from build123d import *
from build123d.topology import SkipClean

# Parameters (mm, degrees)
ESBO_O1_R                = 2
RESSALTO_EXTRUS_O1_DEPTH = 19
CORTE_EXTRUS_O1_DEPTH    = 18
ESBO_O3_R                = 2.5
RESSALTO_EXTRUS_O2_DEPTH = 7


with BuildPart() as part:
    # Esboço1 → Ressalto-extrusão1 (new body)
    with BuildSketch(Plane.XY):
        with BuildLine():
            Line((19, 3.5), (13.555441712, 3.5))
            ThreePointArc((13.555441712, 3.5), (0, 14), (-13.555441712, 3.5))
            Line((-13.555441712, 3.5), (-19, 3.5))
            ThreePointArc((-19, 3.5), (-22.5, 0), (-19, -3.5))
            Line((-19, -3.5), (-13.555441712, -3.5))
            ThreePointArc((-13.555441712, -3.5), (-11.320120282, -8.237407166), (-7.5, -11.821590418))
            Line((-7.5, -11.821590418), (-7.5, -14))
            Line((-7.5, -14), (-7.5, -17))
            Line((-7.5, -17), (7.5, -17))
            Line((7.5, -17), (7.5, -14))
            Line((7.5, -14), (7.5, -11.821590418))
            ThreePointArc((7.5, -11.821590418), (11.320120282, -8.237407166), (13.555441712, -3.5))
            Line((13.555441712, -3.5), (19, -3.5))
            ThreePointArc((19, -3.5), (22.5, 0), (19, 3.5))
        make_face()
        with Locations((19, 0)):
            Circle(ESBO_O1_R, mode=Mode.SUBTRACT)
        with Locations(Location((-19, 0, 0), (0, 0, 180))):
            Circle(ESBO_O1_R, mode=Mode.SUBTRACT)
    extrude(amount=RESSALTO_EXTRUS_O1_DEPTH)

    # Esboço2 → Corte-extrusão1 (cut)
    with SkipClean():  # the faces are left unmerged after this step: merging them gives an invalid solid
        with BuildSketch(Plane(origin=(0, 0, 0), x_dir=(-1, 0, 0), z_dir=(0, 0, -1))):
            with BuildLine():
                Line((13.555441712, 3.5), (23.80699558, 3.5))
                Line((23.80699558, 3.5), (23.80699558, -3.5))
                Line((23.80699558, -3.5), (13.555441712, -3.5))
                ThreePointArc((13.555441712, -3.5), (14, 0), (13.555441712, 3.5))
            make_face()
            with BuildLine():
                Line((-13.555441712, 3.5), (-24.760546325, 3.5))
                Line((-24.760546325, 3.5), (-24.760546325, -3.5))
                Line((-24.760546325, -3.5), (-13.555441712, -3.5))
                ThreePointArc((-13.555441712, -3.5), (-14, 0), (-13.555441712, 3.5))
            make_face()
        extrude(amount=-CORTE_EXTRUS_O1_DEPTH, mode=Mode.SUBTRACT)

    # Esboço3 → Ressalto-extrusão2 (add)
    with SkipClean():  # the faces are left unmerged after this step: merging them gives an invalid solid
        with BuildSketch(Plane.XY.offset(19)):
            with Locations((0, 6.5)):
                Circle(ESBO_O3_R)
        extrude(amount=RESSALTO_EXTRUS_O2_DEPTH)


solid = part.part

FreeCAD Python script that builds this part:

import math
import FreeCAD as App
import Part
import Sketcher
Q = App.Units.Quantity

doc = App.newDocument("Part")
body = doc.addObject("PartDesign::Body", "Body")

sketch1 = body.newObject("Sketcher::SketchObject", "Sketch")
sketch1.AttachmentSupport = (doc.getObject("XY_Plane"), [""])
sketch1.MapMode = "FlatFace"
sketch1.addGeometry(Part.LineSegment(App.Vector(19, 3.5, 0), App.Vector(13.6, 3.5, 0)), False)
sketch1.addGeometry(Part.ArcOfCircle(Part.Circle(App.Vector(0, 0, 0), App.Vector(0, 0, 1), 14), math.radians(14), math.radians(166)), False)
sketch1.addGeometry(Part.LineSegment(App.Vector(-13.6, 3.5, 0), App.Vector(-19, 3.5, 0)), False)
sketch1.addGeometry(Part.ArcOfCircle(Part.Circle(App.Vector(-19, 0, 0), App.Vector(0, 0, 1), 3.5), math.radians(90), math.radians(270)), False)
sketch1.addGeometry(Part.LineSegment(App.Vector(-19, -3.5, 0), App.Vector(-13.6, -3.5, 0)), False)
sketch1.addGeometry(Part.ArcOfCircle(Part.Circle(App.Vector(0, 0, 0), App.Vector(0, 0, 1), 14), math.radians(-166), math.radians(-122)), False)
sketch1.addGeometry(Part.LineSegment(App.Vector(-7.5, -11.8, 0), App.Vector(-7.5, -17, 0)), False)
sketch1.addGeometry(Part.LineSegment(App.Vector(-7.5, -17, 0), App.Vector(7.5, -17, 0)), False)
sketch1.addGeometry(Part.LineSegment(App.Vector(7.5, -17, 0), App.Vector(7.5, -11.8, 0)), False)
sketch1.addGeometry(Part.ArcOfCircle(Part.Circle(App.Vector(0, 0, 0), App.Vector(0, 0, 1), 14), math.radians(-58), math.radians(-14)), False)
sketch1.addGeometry(Part.LineSegment(App.Vector(13.6, -3.5, 0), App.Vector(19, -3.5, 0)), False)
sketch1.addGeometry(Part.ArcOfCircle(Part.Circle(App.Vector(19, 0, 0), App.Vector(0, 0, 1), 3.5), math.radians(-90), math.radians(90)), False)
sketch1.addGeometry(Part.Circle(App.Vector(-19, 0, 0), App.Vector(0, 0, 1), 2), False)
sketch1.addGeometry(Part.Circle(App.Vector(19, 0, 0), App.Vector(0, 0, 1), 2), False)
sketch1.addConstraint(Sketcher.Constraint("Coincident", 0, 2, 1, 1))
sketch1.addConstraint(Sketcher.Constraint("Coincident", 1, 2, 2, 1))
sketch1.addConstraint(Sketcher.Constraint("Tangent", 2, 2, 3, 1))
sketch1.addConstraint(Sketcher.Constraint("Tangent", 3, 2, 4, 1))
sketch1.addConstraint(Sketcher.Constraint("Coincident", 4, 2, 5, 1))
sketch1.addConstraint(Sketcher.Constraint("Coincident", 5, 2, 6, 1))
sketch1.addConstraint(Sketcher.Constraint("Coincident", 6, 2, 7, 1))
sketch1.addConstraint(Sketcher.Constraint("Coincident", 7, 2, 8, 1))
sketch1.addConstraint(Sketcher.Constraint("Coincident", 8, 2, 9, 1))
sketch1.addConstraint(Sketcher.Constraint("Coincident", 9, 2, 10, 1))
sketch1.addConstraint(Sketcher.Constraint("Tangent", 10, 2, 11, 1))
sketch1.addConstraint(Sketcher.Constraint("Tangent", 11, 2, 0, 1))
sketch1.addConstraint(Sketcher.Constraint("Horizontal", 0))
sketch1.addConstraint(Sketcher.Constraint("Horizontal", 2))
sketch1.addConstraint(Sketcher.Constraint("Horizontal", 4))
sketch1.addConstraint(Sketcher.Constraint("Vertical", 6))
sketch1.addConstraint(Sketcher.Constraint("Horizontal", 7))
sketch1.addConstraint(Sketcher.Constraint("Vertical", 8))
sketch1.addConstraint(Sketcher.Constraint("Horizontal", 10))
sketch1.addConstraint(Sketcher.Constraint("Coincident", 1, 3, -1, 1))
sketch1.addConstraint(Sketcher.Constraint("Coincident", 5, 3, -1, 1))
sketch1.addConstraint(Sketcher.Constraint("Coincident", 9, 3, -1, 1))
sketch1.addConstraint(Sketcher.Constraint("Coincident", 12, 3, 3, 3))
sketch1.addConstraint(Sketcher.Constraint("Coincident", 13, 3, 11, 3))
sketch1.addConstraint(Sketcher.Constraint("Equal", 1, 5))
sketch1.addConstraint(Sketcher.Constraint("Equal", 5, 9))
sketch1.addConstraint(Sketcher.Constraint("Equal", 3, 11))
sketch1.addConstraint(Sketcher.Constraint("Equal", 12, 13))
sketch1.addConstraint(Sketcher.Constraint("Symmetric", 3, 3, 11, 3, -1, 1))
sketch1.addConstraint(Sketcher.Constraint("PointOnObject", 3, 3, -1))
sketch1.addConstraint(Sketcher.Constraint("Horizontal", 5, 2, 8, 2))
sketch1.addConstraint(Sketcher.Constraint("Diameter", 12, Q("4 mm")))
sketch1.addConstraint(Sketcher.Constraint("Radius", 1, Q("14 mm")))
sketch1.addConstraint(Sketcher.Constraint("Radius", 3, Q("3.5 mm")))
sketch1.addConstraint(Sketcher.Constraint("DistanceX", 7, 1, 7, 2, Q("15 mm")))
sketch1.addConstraint(Sketcher.Constraint("DistanceX", 3, 3, -1, 1, Q("19 mm")))
sketch1.addConstraint(Sketcher.Constraint("DistanceY", 6, 2, -1, 1, Q("17 mm")))
pad1 = body.newObject("PartDesign::Pad", "Pad")
pad1.Profile = sketch1
pad1.Length = 19

sketch2 = body.newObject("Sketcher::SketchObject", "Sketch001")
sketch2.AttachmentSupport = (doc.getObject("XY_Plane"), [""])
sketch2.MapMode = "FlatFace"
sketch2.addGeometry(Part.LineSegment(App.Vector(-24, 4, 0), App.Vector(-14, 4, 0)), False)
sketch2.addGeometry(Part.ArcOfCircle(Part.Circle(App.Vector(0, 0, 0), App.Vector(0, 0, 1), 14), math.radians(166), math.radians(194)), False)
sketch2.addGeometry(Part.LineSegment(App.Vector(-14, -4, 0), App.Vector(-24, -4, 0)), False)
sketch2.addGeometry(Part.LineSegment(App.Vector(-24, -4, 0), App.Vector(-24, 4, 0)), False)
sketch2.addGeometry(Part.LineSegment(App.Vector(14, 4, 0), App.Vector(25, 4, 0)), False)
sketch2.addGeometry(Part.LineSegment(App.Vector(25, 4, 0), App.Vector(25, -4, 0)), False)
sketch2.addGeometry(Part.LineSegment(App.Vector(25, -4, 0), App.Vector(14, -4, 0)), False)
sketch2.addGeometry(Part.ArcOfCircle(Part.Circle(App.Vector(0, 0, 0), App.Vector(0, 0, 1), 14), math.radians(-14), math.radians(14)), False)
sketch2.addConstraint(Sketcher.Constraint("Coincident", 0, 2, 1, 1))
sketch2.addConstraint(Sketcher.Constraint("Coincident", 1, 2, 2, 1))
sketch2.addConstraint(Sketcher.Constraint("Coincident", 2, 2, 3, 1))
sketch2.addConstraint(Sketcher.Constraint("Coincident", 3, 2, 0, 1))
sketch2.addConstraint(Sketcher.Constraint("Coincident", 4, 2, 5, 1))
sketch2.addConstraint(Sketcher.Constraint("Coincident", 5, 2, 6, 1))
sketch2.addConstraint(Sketcher.Constraint("Coincident", 6, 2, 7, 1))
sketch2.addConstraint(Sketcher.Constraint("Coincident", 7, 2, 4, 1))
sketch2.addConstraint(Sketcher.Constraint("Horizontal", 0))
sketch2.addConstraint(Sketcher.Constraint("Horizontal", 2))
sketch2.addConstraint(Sketcher.Constraint("Vertical", 3))
sketch2.addConstraint(Sketcher.Constraint("Horizontal", 4))
sketch2.addConstraint(Sketcher.Constraint("Vertical", 5))
sketch2.addConstraint(Sketcher.Constraint("Horizontal", 6))
sketch2.addConstraint(Sketcher.Constraint("Coincident", 1, 3, -1, 1))
sketch2.addConstraint(Sketcher.Constraint("Coincident", 7, 3, -1, 1))
sketch2.addConstraint(Sketcher.Constraint("Equal", 1, 7))
sketch2.addConstraint(Sketcher.Constraint("Horizontal", 3, 2, 4, 2))
sketch2.addConstraint(Sketcher.Constraint("Horizontal", 2, 2, 5, 2))
sketch2.addConstraint(Sketcher.Constraint("Vertical", 0, 2, 1, 2))
sketch2.addConstraint(Sketcher.Constraint("Radius", 1, Q("14 mm")))
sketch2.addConstraint(Sketcher.Constraint("DistanceY", 3, 1, 3, 2, Q("7 mm")))
sketch2.addConstraint(Sketcher.Constraint("DistanceX", 0, 1, 0, 2, Q("10.251554 mm")))
sketch2.addConstraint(Sketcher.Constraint("DistanceX", 4, 1, 4, 2, Q("11.205105 mm")))
pocket1 = body.newObject("PartDesign::Pocket", "Pocket")
pocket1.Profile = sketch2
pocket1.Length = 18
pocket1.Reversed = True

sketch3 = body.newObject("Sketcher::SketchObject", "Sketch002")
sketch3.AttachmentSupport = (doc.getObject("XY_Plane"), [""])
sketch3.MapMode = "FlatFace"
sketch3.AttachmentOffset = App.Placement(App.Vector(0, 0, 19), App.Rotation())
sketch3.addGeometry(Part.Circle(App.Vector(0, 6.5, 0), App.Vector(0, 0, 1), 2.5), False)
sketch3.addConstraint(Sketcher.Constraint("PointOnObject", 0, 3, -2))
sketch3.addConstraint(Sketcher.Constraint("Diameter", 0, Q("5 mm")))
sketch3.addConstraint(Sketcher.Constraint("DistanceY", -1, 1, 0, 3, Q("6.5 mm")))
pad2 = body.newObject("PartDesign::Pad", "Pad001")
pad2.Profile = sketch3
pad2.Length = 7

doc.recompute()
